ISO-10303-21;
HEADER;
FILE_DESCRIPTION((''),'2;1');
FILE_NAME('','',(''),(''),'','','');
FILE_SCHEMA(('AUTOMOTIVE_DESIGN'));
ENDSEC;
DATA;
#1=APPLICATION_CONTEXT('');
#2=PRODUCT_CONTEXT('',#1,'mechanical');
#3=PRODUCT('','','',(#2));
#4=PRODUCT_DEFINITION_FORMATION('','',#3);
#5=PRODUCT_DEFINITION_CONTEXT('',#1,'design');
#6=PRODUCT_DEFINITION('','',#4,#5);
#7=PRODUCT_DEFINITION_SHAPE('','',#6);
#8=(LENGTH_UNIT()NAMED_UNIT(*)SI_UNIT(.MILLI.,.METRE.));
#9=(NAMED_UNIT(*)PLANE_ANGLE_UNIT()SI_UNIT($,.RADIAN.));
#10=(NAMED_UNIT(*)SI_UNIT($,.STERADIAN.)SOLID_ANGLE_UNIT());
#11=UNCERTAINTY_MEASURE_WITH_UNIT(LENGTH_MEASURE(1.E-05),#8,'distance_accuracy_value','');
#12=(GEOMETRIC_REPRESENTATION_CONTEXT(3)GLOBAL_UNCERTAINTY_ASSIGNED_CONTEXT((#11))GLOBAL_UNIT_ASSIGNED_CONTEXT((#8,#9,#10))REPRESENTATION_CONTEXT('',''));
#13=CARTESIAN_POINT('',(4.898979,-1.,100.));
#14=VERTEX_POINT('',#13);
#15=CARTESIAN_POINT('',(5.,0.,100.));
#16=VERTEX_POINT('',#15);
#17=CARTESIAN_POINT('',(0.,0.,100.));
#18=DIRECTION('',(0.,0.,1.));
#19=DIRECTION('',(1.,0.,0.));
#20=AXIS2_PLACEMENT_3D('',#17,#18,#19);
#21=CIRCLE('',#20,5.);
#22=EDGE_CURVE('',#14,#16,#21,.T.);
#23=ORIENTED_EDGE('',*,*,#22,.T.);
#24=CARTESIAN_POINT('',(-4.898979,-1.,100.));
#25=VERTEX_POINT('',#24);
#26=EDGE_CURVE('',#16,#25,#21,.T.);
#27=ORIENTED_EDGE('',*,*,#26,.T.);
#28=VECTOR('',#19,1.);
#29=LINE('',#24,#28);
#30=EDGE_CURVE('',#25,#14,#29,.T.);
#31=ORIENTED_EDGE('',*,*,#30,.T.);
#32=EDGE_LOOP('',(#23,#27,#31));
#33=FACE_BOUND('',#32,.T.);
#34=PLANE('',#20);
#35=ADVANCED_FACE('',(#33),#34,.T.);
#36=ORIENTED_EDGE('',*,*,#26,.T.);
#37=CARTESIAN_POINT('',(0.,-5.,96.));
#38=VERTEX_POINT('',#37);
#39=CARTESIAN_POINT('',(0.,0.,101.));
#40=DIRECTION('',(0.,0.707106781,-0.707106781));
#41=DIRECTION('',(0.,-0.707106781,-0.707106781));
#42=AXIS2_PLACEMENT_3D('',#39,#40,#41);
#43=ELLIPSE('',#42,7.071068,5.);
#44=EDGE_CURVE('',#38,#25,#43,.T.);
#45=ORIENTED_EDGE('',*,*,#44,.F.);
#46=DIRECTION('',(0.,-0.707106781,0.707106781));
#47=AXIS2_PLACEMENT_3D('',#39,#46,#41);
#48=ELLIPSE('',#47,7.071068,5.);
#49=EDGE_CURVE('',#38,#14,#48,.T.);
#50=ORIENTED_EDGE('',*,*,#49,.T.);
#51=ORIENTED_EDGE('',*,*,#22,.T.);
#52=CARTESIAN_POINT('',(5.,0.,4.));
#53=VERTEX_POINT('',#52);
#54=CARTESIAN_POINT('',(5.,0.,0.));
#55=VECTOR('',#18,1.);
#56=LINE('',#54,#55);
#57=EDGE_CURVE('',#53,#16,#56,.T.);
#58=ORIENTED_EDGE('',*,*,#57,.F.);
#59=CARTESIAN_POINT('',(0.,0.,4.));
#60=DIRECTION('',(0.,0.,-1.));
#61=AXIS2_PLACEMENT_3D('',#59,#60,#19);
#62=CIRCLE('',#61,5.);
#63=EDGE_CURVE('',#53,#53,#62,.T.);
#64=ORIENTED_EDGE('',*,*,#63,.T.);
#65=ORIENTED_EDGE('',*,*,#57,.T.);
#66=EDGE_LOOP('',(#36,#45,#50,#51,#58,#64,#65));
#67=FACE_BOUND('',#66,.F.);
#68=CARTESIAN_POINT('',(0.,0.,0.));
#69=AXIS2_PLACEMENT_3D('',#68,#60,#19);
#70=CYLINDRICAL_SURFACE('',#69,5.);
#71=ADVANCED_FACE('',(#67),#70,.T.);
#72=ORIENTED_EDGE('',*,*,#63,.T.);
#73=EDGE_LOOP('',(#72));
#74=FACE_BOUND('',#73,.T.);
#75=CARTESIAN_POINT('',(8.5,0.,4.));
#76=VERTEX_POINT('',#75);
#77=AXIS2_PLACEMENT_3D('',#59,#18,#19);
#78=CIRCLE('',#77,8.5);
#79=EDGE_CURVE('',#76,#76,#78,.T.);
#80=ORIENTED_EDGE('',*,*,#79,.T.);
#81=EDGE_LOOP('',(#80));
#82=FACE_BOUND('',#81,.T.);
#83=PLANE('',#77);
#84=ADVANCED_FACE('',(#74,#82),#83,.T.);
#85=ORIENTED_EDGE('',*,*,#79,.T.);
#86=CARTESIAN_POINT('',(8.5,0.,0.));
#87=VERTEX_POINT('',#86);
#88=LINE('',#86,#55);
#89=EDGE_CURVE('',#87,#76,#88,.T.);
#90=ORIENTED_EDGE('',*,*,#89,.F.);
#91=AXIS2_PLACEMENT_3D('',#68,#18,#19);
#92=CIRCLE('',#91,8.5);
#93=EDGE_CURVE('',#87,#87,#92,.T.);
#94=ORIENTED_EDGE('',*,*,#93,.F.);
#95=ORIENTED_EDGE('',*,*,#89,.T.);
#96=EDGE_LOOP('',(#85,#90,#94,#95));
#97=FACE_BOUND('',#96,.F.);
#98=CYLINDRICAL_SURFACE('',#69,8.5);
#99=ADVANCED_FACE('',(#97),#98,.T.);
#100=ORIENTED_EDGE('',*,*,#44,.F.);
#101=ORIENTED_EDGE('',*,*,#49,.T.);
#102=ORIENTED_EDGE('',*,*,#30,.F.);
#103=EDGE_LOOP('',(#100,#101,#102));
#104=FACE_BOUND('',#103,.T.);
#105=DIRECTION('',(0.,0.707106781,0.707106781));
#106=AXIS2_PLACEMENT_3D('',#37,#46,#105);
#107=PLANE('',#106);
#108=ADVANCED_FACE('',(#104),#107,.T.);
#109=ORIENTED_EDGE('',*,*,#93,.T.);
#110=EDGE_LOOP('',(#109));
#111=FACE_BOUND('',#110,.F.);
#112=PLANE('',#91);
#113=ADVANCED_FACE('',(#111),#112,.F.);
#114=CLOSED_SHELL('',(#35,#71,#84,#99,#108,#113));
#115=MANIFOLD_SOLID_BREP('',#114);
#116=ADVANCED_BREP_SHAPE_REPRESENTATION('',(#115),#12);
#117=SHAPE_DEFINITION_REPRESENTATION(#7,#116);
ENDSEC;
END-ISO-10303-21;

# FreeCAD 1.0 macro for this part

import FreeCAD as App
import Part
import Sketcher

V = App.Vector
Q = App.Units.Quantity

doc = App.newDocument("Part")
body = doc.addObject("PartDesign::Body", "Body")

sketch1 = body.newObject("Sketcher::SketchObject", "Sketch")
sketch1.AttachmentSupport = (doc.getObject("XY_Plane"), [""])
sketch1.MapMode = "FlatFace"
sketch1.addGeometry(Part.Circle(V(0, 0, 0), V(0, 0, 1), 8), False)
sketch1.addConstraint([
    Sketcher.Constraint("Coincident", 0, 3, -1, 1),
    Sketcher.Constraint("Diameter", 0, Q("17 mm")),
])
pad1 = body.newObject("PartDesign::Pad", "Pad")
pad1.Profile = sketch1
pad1.Length = 4

sketch2 = body.newObject("Sketcher::SketchObject", "Sketch001")
sketch2.AttachmentSupport = (doc.getObject("XY_Plane"), [""])
sketch2.MapMode = "FlatFace"
sketch2.addGeometry(Part.Circle(V(0, 0, 0), V(0, 0, 1), 5), False)
sketch2.addConstraint([
    Sketcher.Constraint("Coincident", 0, 3, -1, 1),
    Sketcher.Constraint("Diameter", 0, Q("10 mm")),
])
pad2 = body.newObject("PartDesign::Pad", "Pad001")
pad2.Profile = sketch2
pad2.Length = 100

sketch3 = body.newObject("Sketcher::SketchObject", "Sketch002")
sketch3.AttachmentSupport = (doc.getObject("YZ_Plane"), [""])
sketch3.MapMode = "FlatFace"
sketch3.addGeometry([
    Part.LineSegment(V(0, 101, 0), V(-5, 101, 0)),
    Part.LineSegment(V(-5, 101, 0), V(-5, 96, 0)),
    Part.LineSegment(V(-5, 96, 0), V(0, 101, 0)),
], False)
sketch3.addConstraint([
    Sketcher.Constraint("Coincident", 0, 2, 1, 1),
    Sketcher.Constraint("Coincident", 1, 2, 2, 1),
    Sketcher.Constraint("Coincident", 2, 2, 0, 1),
    Sketcher.Constraint("Horizontal", 0),
    Sketcher.Constraint("Vertical", 1),
    Sketcher.Constraint("PointOnObject", 2, 2, -2),
    Sketcher.Constraint("Equal", 0, 1),
    Sketcher.Constraint("DistanceX", 0, 2, 0, 1, Q("5 mm")),
    Sketcher.Constraint("DistanceY", -1, 1, 0, 2, Q("101 mm")),
])
pocket1 = body.newObject("PartDesign::Pocket", "Pocket")
pocket1.Profile = sketch3
pocket1.Type = "ThroughAll"
pocket1.Midplane = True

doc.recompute()
